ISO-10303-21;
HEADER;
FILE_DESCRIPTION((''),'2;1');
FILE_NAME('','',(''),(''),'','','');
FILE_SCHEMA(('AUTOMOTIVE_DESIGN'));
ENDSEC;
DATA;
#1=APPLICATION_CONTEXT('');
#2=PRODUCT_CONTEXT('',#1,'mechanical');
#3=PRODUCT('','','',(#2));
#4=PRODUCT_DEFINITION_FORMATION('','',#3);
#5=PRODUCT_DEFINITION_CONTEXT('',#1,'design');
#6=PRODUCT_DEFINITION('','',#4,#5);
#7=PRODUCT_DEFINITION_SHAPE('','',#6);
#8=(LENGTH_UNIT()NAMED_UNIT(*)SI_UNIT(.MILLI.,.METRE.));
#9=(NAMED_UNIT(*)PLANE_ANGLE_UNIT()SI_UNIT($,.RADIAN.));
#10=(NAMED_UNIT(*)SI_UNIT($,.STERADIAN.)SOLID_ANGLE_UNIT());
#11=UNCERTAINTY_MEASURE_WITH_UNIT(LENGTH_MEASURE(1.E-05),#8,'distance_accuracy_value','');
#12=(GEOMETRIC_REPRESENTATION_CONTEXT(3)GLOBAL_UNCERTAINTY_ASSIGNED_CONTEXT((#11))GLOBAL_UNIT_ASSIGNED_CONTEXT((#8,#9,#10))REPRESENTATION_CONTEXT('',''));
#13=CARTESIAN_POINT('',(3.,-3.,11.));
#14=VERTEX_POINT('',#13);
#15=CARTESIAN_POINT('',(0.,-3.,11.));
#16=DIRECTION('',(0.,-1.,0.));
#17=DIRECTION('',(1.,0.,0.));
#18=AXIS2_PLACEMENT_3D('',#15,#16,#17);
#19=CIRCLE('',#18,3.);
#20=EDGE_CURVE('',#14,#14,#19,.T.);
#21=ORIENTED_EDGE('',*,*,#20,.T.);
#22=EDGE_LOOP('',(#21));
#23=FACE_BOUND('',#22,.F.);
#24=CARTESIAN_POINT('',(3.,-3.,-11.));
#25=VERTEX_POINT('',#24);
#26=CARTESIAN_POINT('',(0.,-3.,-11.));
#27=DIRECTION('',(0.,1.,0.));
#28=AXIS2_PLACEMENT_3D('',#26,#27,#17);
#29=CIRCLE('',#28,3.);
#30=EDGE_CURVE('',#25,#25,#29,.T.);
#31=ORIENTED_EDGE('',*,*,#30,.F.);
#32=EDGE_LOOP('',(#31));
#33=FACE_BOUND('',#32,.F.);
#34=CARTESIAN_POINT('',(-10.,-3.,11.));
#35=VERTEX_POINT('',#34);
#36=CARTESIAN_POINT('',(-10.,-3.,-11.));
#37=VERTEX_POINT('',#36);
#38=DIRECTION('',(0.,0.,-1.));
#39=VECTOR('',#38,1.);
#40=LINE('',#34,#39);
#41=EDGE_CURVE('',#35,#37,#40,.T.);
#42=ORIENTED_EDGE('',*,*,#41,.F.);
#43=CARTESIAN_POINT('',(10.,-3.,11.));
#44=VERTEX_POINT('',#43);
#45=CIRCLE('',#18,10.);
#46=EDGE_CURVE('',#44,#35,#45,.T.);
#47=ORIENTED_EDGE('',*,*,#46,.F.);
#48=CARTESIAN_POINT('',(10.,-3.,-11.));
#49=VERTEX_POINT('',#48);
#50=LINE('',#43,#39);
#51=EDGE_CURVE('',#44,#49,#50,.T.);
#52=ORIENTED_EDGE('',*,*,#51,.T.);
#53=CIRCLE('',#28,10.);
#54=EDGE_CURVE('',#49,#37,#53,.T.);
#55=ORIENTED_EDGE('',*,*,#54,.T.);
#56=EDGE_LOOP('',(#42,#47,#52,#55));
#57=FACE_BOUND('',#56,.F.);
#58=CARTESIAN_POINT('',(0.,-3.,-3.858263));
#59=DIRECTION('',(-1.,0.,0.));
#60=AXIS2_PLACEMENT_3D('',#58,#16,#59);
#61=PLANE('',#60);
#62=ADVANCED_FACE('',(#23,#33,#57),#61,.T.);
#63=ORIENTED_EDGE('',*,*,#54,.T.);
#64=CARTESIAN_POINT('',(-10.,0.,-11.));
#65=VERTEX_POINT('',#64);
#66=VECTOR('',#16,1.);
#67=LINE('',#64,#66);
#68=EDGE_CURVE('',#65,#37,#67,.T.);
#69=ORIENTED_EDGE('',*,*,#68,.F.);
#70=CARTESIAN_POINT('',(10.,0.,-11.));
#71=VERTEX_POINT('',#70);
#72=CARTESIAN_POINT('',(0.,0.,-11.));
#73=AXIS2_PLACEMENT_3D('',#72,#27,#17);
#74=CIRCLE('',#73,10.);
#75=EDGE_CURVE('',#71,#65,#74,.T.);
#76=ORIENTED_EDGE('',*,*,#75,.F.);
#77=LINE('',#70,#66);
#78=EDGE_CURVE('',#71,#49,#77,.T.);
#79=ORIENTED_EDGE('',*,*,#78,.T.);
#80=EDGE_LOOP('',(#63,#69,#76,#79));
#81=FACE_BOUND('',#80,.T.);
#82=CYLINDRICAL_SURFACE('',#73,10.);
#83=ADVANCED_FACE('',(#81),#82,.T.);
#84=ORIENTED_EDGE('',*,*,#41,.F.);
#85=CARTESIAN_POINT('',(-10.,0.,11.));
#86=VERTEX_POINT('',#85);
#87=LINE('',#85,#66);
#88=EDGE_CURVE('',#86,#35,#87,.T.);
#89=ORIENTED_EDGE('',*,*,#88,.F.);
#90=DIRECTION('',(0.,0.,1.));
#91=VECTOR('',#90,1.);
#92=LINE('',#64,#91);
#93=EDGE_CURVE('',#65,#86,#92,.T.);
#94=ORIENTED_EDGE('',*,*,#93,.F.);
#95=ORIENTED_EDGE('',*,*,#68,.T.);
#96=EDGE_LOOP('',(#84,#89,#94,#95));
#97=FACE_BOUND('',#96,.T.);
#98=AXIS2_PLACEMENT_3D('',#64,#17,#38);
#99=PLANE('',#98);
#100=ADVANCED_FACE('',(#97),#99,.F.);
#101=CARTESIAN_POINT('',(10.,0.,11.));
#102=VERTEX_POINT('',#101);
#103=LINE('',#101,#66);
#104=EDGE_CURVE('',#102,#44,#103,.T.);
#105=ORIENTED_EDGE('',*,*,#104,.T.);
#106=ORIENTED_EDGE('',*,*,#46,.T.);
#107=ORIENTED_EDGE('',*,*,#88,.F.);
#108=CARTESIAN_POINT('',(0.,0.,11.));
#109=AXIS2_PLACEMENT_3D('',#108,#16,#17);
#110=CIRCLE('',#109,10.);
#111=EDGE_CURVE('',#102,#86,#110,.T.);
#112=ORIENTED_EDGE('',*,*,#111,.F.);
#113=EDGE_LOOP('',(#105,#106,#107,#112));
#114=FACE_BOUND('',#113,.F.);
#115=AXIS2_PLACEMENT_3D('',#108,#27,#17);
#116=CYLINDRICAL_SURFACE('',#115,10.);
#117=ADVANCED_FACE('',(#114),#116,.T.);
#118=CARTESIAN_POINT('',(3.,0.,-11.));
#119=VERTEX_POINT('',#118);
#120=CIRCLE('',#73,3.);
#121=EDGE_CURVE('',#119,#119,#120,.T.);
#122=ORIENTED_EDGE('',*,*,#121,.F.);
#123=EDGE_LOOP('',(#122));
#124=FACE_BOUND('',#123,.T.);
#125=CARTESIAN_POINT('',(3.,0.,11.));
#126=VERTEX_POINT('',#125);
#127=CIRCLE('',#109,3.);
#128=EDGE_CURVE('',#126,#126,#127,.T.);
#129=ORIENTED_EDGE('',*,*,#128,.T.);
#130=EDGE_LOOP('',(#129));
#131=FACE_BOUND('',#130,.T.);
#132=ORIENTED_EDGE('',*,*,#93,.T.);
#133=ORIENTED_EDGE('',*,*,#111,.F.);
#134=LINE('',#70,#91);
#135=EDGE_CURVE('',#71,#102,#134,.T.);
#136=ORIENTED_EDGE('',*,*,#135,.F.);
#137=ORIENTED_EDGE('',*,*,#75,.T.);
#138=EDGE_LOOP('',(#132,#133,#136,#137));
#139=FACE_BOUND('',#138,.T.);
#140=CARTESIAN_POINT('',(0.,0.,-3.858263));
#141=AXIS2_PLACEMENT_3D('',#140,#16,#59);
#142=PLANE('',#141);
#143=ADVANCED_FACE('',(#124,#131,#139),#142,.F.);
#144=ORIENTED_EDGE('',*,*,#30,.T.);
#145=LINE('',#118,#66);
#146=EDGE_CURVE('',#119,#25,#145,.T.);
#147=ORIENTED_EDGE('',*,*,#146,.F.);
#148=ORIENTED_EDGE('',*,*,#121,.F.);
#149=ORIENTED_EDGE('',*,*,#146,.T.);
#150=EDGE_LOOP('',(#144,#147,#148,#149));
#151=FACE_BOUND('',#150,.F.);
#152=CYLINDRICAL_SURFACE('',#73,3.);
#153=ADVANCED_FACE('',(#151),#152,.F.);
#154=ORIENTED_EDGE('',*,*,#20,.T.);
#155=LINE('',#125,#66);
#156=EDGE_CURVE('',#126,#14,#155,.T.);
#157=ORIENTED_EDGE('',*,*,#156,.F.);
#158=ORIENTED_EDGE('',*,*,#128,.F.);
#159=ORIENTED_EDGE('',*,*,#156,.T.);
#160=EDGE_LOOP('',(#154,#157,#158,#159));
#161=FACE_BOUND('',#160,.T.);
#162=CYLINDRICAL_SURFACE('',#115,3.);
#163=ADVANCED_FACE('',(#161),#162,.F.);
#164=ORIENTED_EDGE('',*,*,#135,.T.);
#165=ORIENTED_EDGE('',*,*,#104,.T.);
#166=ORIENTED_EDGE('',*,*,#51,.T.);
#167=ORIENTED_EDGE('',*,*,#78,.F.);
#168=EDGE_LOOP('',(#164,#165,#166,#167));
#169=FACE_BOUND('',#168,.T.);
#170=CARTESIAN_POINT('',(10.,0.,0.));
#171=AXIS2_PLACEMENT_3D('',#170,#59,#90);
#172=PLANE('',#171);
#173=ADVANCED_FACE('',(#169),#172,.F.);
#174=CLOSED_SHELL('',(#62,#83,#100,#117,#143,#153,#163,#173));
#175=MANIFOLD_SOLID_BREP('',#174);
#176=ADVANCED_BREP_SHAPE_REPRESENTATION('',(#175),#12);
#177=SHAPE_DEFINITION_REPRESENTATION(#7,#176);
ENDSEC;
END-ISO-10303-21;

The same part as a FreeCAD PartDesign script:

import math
import FreeCAD as App
import Part
import Sketcher
from FreeCAD import Vector
Q = App.Units.Quantity

doc = App.newDocument("Part")
params = doc.addObject("Spreadsheet::Sheet", "Params")
for row, (alias, value) in enumerate([
    ("sketch1_diameter", "6 mm"),
    ("sketch1_radius", "10 mm"),
    ("sketch1_height", "11 mm"),
    ("pad1_length", "3 mm"),
], start=1):
    params.set(f"A{row}", alias)
    params.set(f"B{row}", "=" + value)
    params.setAlias(f"B{row}", alias)

body = doc.addObject("PartDesign::Body", "Body")

sketch1 = body.newObject("Sketcher::SketchObject", "Sketch")
sketch1.AttachmentSupport = (doc.getObject("XZ_Plane"), [""])
sketch1.MapMode = "FlatFace"
sketch1.addGeometry(Part.LineSegment(Vector(10, 0, 0), Vector(10, 11, 0)), False)
sketch1.addGeometry(Part.ArcOfCircle(Part.Circle(Vector(0, 11, 0), Vector(0, 0, 1), 10), math.radians(0), math.radians(180)), False)
sketch1.addGeometry(Part.LineSegment(Vector(-10, 11, 0), Vector(-10, 0, 0)), False)
sketch1.addGeometry(Part.LineSegment(Vector(-10, 0, 0), Vector(10, 0, 0)), False)
sketch1.addGeometry(Part.Circle(Vector(0, 11, 0), Vector(0, 0, 1), 3), False)
sketch1.addConstraint(Sketcher.Constraint("Tangent", 0, 2, 1, 1))
sketch1.addConstraint(Sketcher.Constraint("Tangent", 1, 2, 2, 1))
sketch1.addConstraint(Sketcher.Constraint("Coincident", 2, 2, 3, 1))
sketch1.addConstraint(Sketcher.Constraint("Coincident", 3, 2, 0, 1))
sketch1.addConstraint(Sketcher.Constraint("Vertical", 0))
sketch1.addConstraint(Sketcher.Constraint("Vertical", 2))
sketch1.addConstraint(Sketcher.Constraint("Horizontal", 3))
sketch1.addConstraint(Sketcher.Constraint("Coincident", 4, 3, 1, 3))
sketch1.addConstraint(Sketcher.Constraint("Symmetric", 2, 2, 3, 2, -1, 1))
sketch1.addConstraint(Sketcher.Constraint("Diameter", 4, Q("6 mm")))
sketch1.addConstraint(Sketcher.Constraint("Radius", 1, Q("10 mm")))
sketch1.addConstraint(Sketcher.Constraint("DistanceY", 0, 1, 0, 2, Q("11 mm")))
sketch1.setExpression("Constraints[9]", "Params.sketch1_diameter")
sketch1.setExpression("Constraints[10]", "Params.sketch1_radius")
sketch1.setExpression("Constraints[11]", "Params.sketch1_height")
pad1 = body.newObject("PartDesign::Pad", "Pad")
pad1.Profile = sketch1
pad1.setExpression("Length", "Params.pad1_length")
body2 = doc.addObject("PartDesign::Body", "Body001")
doc.recompute()

body2.BaseFeature = body
doc.recompute()

mirroring = doc.addObject("Part::Mirroring", "Mirroring")
mirroring.Source = body
mirroring.Base = Vector(0, -1.5, 0)
mirroring.Normal = Vector(0, 0, -1)
body3 = doc.addObject("PartDesign::Body", "Body002")
body3.BaseFeature = mirroring
boolean = body2.newObject("PartDesign::Boolean", "Boolean")
boolean.Type = "Fuse"
boolean.addObjects([body3])
doc.recompute()
mirroring.Visibility = False

doc.recompute()
